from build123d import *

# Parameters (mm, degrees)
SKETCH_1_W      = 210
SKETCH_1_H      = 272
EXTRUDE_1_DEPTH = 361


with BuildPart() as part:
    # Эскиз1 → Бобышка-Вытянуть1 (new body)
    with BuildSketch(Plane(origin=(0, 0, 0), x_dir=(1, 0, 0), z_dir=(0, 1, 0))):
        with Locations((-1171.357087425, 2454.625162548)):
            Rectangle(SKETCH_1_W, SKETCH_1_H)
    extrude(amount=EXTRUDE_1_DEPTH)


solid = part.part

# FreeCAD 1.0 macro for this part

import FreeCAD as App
import Part
import Sketcher
from FreeCAD import Vector
Q = App.Units.Quantity

doc = App.newDocument("Part")
body = doc.addObject("PartDesign::Body", "Body")

# Sketch on XZ plane
sketch1 = doc.addObject("Sketcher::SketchObject", "Sketch")
body.addObject(sketch1)
sketch1.AttachmentSupport = (doc.XZ_Plane, [""])
sketch1.MapMode = "FlatFace"
sketch1.addGeometry([
    Part.LineSegment(Vector(-1276, -2591, 0), Vector(-1276, -2319, 0)),
    Part.LineSegment(Vector(-1276, -2319, 0), Vector(-1066, -2319, 0)),
    Part.LineSegment(Vector(-1066, -2319, 0), Vector(-1066, -2591, 0)),
    Part.LineSegment(Vector(-1066, -2591, 0), Vector(-1276, -2591, 0)),
], False)
sketch1.addConstraint([
    Sketcher.Constraint("Coincident", 0, 2, 1, 1),
    Sketcher.Constraint("Coincident", 1, 2, 2, 1),
    Sketcher.Constraint("Coincident", 2, 2, 3, 1),
    Sketcher.Constraint("Coincident", 3, 2, 0, 1),
    Sketcher.Constraint("Vertical", 0),
    Sketcher.Constraint("Horizontal", 1),
    Sketcher.Constraint("Vertical", 2),
    Sketcher.Constraint("Horizontal", 3),
    Sketcher.Constraint("DistanceX", 1, 1, 1, 2, Q("210 mm")),
    Sketcher.Constraint("DistanceY", 0, 1, 0, 2, Q("272 mm")),
    Sketcher.Constraint("DistanceX", 0, 2, -1, 1, Q("1276.357087 mm")),
    Sketcher.Constraint("DistanceY", 0, 2, -1, 1, Q("2318.625163 mm")),
])
pad1 = doc.addObject("PartDesign::Pad", "Pad")
body.addObject(pad1)
pad1.Profile = sketch1
pad1.Length = 361
pad1.Reversed = True

doc.recompute()
